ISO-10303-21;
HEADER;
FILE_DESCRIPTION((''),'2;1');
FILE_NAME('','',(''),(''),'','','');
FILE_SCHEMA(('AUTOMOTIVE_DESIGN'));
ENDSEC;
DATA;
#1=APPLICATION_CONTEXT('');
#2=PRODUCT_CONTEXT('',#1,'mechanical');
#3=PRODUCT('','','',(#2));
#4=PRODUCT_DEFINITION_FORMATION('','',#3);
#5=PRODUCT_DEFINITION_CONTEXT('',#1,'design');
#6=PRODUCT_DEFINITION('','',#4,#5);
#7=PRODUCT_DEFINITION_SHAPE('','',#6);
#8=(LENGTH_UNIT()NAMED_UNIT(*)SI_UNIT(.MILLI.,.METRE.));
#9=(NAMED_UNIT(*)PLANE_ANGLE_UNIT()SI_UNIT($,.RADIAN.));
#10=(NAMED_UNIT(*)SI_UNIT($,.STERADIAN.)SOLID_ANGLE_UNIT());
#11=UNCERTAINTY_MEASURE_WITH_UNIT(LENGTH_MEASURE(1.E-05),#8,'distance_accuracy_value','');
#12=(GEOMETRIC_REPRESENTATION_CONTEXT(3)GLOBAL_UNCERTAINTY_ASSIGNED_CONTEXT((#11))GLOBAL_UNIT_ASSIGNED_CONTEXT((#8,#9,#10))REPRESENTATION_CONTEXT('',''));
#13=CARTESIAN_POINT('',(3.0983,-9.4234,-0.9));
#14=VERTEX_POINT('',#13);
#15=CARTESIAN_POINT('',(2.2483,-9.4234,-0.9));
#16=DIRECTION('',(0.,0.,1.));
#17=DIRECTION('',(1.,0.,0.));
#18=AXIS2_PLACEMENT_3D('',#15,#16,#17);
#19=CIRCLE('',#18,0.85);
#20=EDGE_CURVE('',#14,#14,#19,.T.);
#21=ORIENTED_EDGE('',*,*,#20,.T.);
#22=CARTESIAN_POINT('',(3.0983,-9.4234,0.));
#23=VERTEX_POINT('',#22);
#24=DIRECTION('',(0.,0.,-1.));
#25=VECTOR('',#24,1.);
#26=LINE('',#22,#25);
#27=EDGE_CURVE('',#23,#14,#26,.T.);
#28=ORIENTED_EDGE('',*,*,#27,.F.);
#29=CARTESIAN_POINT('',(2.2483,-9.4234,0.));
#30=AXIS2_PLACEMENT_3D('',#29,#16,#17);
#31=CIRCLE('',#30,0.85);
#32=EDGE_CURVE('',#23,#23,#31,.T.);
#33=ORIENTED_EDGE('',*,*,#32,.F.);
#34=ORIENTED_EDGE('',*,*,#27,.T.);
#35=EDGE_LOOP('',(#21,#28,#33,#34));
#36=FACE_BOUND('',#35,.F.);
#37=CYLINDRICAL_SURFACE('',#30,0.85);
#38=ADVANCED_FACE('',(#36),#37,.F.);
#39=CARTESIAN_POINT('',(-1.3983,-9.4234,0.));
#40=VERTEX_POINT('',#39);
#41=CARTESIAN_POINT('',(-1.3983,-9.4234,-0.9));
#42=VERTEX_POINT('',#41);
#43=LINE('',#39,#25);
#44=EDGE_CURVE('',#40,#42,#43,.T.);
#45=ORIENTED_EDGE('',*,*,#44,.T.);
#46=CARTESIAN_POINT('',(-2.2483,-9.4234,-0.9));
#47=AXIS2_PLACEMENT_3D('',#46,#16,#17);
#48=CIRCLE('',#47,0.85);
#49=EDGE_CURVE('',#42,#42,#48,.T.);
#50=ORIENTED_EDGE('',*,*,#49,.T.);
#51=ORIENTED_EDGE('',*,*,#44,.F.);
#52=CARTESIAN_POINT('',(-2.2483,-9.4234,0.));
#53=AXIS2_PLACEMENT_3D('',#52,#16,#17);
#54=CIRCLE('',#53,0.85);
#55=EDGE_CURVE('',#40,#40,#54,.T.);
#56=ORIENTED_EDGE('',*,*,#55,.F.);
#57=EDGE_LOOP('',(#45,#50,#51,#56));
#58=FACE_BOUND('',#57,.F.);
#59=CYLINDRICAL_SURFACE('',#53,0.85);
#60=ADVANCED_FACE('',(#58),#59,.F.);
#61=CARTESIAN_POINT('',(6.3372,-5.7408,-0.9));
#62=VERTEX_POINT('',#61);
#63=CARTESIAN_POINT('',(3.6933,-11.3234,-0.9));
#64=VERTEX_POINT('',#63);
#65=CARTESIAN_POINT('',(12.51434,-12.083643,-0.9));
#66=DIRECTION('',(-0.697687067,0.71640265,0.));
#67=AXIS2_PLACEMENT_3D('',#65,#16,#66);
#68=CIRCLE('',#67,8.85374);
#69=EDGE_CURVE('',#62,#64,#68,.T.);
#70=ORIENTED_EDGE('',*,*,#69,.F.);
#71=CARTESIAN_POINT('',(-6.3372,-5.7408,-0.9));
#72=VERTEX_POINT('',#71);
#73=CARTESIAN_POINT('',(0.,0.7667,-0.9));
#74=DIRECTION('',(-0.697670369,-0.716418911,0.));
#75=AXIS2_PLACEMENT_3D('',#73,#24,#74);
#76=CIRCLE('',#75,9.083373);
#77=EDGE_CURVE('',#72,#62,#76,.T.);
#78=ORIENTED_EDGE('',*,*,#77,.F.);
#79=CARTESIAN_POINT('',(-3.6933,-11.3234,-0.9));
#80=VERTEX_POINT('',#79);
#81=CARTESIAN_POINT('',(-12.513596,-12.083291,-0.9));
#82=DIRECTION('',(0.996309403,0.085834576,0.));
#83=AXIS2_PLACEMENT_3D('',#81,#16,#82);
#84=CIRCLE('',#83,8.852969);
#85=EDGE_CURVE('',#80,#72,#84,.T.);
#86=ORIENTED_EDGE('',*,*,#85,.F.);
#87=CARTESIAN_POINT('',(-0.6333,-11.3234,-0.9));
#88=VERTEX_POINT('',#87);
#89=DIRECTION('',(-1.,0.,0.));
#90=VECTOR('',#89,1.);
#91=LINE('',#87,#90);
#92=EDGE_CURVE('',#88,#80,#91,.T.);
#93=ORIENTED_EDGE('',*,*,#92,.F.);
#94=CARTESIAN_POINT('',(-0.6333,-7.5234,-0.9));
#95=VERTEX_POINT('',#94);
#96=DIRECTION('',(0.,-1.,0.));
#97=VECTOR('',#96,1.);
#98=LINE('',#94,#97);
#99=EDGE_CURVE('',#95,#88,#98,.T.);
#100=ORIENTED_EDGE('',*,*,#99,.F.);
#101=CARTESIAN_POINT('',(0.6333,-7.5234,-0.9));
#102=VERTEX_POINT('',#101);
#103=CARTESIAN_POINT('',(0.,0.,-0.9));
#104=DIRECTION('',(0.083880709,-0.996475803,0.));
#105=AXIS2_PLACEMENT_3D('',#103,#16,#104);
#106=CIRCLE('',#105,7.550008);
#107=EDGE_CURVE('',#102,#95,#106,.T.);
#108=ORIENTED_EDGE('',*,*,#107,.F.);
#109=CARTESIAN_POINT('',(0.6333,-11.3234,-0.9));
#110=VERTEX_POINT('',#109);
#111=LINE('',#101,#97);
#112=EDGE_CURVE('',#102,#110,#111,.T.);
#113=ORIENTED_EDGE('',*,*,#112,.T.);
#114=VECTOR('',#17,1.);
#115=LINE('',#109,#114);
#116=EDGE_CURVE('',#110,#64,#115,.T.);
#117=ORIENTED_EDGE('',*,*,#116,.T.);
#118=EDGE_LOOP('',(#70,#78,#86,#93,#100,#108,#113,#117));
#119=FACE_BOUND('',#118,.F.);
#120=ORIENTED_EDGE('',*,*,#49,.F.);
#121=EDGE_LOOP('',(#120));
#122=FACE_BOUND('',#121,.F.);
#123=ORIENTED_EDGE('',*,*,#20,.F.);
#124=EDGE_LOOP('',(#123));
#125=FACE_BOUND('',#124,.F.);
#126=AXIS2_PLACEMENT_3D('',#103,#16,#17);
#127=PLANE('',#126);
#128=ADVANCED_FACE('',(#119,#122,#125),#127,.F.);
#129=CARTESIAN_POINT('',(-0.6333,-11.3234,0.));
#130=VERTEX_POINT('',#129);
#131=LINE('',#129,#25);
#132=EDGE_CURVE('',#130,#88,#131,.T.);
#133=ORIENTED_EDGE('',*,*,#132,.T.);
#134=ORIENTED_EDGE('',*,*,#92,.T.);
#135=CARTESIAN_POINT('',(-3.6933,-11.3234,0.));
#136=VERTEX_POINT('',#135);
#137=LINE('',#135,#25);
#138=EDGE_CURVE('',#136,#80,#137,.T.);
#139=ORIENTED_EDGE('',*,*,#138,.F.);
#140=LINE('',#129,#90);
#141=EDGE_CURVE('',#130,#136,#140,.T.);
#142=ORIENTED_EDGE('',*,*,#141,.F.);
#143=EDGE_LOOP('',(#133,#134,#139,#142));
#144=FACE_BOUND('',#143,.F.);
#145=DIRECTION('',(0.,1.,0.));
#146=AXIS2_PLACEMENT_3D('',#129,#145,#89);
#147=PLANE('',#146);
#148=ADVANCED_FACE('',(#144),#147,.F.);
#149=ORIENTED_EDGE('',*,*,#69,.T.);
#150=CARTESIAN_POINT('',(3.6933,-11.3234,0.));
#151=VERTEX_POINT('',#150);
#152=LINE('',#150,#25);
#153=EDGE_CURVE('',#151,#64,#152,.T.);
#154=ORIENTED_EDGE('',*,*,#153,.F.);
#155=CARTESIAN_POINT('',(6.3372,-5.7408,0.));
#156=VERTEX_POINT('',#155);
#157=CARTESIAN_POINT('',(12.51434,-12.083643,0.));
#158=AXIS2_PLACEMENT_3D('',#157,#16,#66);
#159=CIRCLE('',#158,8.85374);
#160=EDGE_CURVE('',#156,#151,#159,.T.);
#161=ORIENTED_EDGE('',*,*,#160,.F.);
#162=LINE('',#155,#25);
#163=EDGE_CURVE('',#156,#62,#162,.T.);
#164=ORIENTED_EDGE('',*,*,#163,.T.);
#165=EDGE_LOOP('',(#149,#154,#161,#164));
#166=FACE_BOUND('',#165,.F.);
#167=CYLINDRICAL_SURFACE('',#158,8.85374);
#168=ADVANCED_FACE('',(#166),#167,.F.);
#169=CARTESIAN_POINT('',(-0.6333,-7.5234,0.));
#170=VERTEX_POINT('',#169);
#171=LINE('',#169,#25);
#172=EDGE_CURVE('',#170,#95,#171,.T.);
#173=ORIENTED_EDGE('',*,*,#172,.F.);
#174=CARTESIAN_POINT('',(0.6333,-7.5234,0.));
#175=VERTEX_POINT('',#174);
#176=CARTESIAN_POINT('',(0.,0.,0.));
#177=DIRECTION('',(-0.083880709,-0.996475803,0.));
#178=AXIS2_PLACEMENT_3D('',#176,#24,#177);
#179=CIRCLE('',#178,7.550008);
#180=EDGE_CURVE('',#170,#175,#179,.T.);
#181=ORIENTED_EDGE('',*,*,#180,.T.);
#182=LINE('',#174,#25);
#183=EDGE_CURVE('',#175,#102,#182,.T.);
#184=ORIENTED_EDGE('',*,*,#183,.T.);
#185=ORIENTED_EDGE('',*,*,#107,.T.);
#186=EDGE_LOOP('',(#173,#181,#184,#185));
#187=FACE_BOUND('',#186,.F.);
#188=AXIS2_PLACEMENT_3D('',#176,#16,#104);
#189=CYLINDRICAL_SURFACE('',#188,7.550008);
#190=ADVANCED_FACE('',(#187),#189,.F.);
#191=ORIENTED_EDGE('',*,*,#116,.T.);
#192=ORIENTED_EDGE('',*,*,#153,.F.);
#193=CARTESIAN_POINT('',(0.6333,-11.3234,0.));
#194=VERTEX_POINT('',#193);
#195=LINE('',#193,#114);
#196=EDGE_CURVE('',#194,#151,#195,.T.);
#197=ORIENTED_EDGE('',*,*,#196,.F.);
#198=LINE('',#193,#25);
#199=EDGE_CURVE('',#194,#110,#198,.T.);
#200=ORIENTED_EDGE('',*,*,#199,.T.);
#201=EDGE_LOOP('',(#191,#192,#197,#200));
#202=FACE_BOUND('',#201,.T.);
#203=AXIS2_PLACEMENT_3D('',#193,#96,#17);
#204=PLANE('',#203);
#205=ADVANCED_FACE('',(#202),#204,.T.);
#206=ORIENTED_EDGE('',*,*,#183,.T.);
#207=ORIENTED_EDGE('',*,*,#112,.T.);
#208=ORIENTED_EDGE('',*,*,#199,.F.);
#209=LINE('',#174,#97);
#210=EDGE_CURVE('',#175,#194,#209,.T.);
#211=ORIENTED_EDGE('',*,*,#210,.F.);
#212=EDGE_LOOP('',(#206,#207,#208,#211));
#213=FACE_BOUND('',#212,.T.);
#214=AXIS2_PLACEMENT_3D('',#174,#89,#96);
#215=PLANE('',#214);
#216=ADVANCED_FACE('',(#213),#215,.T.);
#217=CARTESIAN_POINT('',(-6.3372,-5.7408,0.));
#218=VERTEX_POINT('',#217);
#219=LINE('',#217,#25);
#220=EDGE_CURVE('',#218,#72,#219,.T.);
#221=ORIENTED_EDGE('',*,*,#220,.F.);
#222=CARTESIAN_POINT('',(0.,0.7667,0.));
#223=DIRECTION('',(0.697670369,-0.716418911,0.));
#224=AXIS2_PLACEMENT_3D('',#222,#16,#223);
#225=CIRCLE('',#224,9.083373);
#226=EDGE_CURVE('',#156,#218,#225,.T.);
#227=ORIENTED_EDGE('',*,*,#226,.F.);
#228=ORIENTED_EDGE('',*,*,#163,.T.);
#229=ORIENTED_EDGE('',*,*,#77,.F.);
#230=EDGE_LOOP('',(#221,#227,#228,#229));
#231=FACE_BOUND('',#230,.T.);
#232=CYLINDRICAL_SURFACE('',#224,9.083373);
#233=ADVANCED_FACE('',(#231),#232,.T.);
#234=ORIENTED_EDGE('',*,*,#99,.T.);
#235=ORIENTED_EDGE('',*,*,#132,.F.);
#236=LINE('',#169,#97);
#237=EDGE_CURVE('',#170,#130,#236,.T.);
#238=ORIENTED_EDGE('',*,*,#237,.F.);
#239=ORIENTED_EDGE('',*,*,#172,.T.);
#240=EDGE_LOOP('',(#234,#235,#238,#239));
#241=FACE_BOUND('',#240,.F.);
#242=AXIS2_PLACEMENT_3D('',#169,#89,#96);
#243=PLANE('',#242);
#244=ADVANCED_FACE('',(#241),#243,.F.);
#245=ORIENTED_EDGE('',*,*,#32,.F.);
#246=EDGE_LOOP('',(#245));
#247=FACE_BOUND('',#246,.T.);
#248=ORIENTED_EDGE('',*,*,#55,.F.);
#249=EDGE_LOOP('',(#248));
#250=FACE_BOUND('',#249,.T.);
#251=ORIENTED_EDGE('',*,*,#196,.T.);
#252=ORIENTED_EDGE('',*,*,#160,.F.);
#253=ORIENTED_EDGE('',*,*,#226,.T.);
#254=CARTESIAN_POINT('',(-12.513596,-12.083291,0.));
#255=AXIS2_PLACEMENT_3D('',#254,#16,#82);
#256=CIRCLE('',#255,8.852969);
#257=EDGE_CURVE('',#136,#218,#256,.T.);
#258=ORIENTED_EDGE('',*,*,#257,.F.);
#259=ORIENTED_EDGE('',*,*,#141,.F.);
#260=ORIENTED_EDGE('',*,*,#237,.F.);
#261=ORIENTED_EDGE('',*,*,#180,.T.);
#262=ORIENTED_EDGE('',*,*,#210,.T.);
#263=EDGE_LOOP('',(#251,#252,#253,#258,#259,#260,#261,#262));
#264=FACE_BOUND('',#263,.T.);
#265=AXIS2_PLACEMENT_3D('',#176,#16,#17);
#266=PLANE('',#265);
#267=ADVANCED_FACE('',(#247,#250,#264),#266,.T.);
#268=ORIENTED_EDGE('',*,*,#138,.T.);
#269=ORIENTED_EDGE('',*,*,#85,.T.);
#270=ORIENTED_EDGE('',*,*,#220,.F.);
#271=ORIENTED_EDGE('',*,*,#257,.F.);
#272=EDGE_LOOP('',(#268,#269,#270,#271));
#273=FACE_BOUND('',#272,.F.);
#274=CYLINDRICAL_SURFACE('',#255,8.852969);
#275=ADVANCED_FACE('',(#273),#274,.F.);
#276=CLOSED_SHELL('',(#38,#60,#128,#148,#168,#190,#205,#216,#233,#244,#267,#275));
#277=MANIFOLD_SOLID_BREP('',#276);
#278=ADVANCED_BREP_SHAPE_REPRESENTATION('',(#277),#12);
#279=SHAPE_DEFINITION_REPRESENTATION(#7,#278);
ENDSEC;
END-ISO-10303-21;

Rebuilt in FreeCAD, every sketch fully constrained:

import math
import FreeCAD as App
import Part
import Sketcher

doc = App.newDocument("Part")
body = doc.addObject("PartDesign::Body", "Body")

# Sketch on XY plane
sketch1 = body.newObject("Sketcher::SketchObject", "Sketch")
sketch1.AttachmentSupport = (doc.getObject("XY_Plane"), [""])
sketch1.MapMode = "FlatFace"
sketch1.addGeometry([
    Part.LineSegment(App.Vector(-3.7, -11.3, 0), App.Vector(-0.6, -11.3, 0)),  # 0
    Part.LineSegment(App.Vector(-0.6, -11.3, 0), App.Vector(-0.6, -7.5, 0)),  # 1
    Part.ArcOfCircle(Part.Circle(App.Vector(0, 0, 0), App.Vector(0, 0, 1), 7.6), math.radians(-85), math.radians(265)),  # 2
    Part.LineSegment(App.Vector(0.6, -7.5, 0), App.Vector(0.6, -11.3, 0)),  # 3
    Part.LineSegment(App.Vector(0.6, -11.3, 0), App.Vector(3.7, -11.3, 0)),  # 4
    Part.ArcOfCircle(Part.Circle(App.Vector(12.5, -12.1, 0), App.Vector(0, 0, 1), 8.9), math.radians(134), math.radians(175)),  # 5
    Part.ArcOfCircle(Part.Circle(App.Vector(0, 0.8, 0), App.Vector(0, 0, 1), 9.1), math.radians(-46), math.radians(226)),  # 6
    Part.ArcOfCircle(Part.Circle(App.Vector(-12.5, -12.1, 0), App.Vector(0, 0, 1), 8.9), math.radians(5), math.radians(46)),  # 7
], False)
sketch1.addConstraint([
    Sketcher.Constraint("Coincident", 0, 2, 1, 1),
    Sketcher.Constraint("Coincident", 1, 2, 2, 2),
    Sketcher.Constraint("Coincident", 2, 1, 3, 1),
    Sketcher.Constraint("Coincident", 3, 2, 4, 1),
    Sketcher.Constraint("Coincident", 4, 2, 5, 2),
    Sketcher.Constraint("Tangent", 5, 1, 6, 1),
    Sketcher.Constraint("Tangent", 6, 2, 7, 2),
    Sketcher.Constraint("Coincident", 7, 1, 0, 1),
    Sketcher.Constraint("Horizontal", 0),
    Sketcher.Constraint("Vertical", 1),
    Sketcher.Constraint("Vertical", 3),
    Sketcher.Constraint("Horizontal", 4),
    Sketcher.Constraint("Coincident", 2, 3, -1, 1),
    Sketcher.Constraint("Equal", 5, 7),
    Sketcher.Constraint("Symmetric", 5, 3, 7, 3, -2),
    Sketcher.Constraint("Symmetric", 0, 2, 3, 2, -2),
    Sketcher.Constraint("Radius", 2, 7.55),
    Sketcher.Constraint("DistanceY", 1, 1, 1, 2, 3.8),
    Sketcher.Constraint("DistanceX", 0, 1, 0, 2, 3.06),
    Sketcher.Constraint("DistanceY", 7, 3, 0, 2, 0.76),
    Sketcher.Constraint("DistanceY", -1, 1, 6, 3, 0.7667),
    Sketcher.Constraint("Radius", 5, 8.8533),
    Sketcher.Constraint("Radius", 6, 9.0834),
])
pad1 = body.newObject("PartDesign::Pad", "Pad")
pad1.Profile = sketch1
pad1.Length = 0.9
pad1.Reversed = True

# Sketch on XY plane
sketch2 = body.newObject("Sketcher::SketchObject", "Sketch001")
sketch2.AttachmentSupport = (doc.getObject("XY_Plane"), [""])
sketch2.MapMode = "FlatFace"
sketch2.addGeometry([
    Part.Circle(App.Vector(-2.2, -9.4, 0), App.Vector(0, 0, 1), 0.8),
    Part.Circle(App.Vector(2.2, -9.4, 0), App.Vector(0, 0, 1), 0.8),
], False)
sketch2.addConstraint([
    Sketcher.Constraint("Equal", 0, 1),
    Sketcher.Constraint("Symmetric", 0, 3, 1, 3, -2),
    Sketcher.Constraint("Diameter", 0, 1.7),
    Sketcher.Constraint("DistanceX", 0, 3, 1, 3, 4.4966),
    Sketcher.Constraint("DistanceY", 0, 3, -1, 1, 9.4234),
])
pocket1 = body.newObject("PartDesign::Pocket", "Pocket")
pocket1.Profile = sketch2
pocket1.Type = "ThroughAll"

doc.recompute()
